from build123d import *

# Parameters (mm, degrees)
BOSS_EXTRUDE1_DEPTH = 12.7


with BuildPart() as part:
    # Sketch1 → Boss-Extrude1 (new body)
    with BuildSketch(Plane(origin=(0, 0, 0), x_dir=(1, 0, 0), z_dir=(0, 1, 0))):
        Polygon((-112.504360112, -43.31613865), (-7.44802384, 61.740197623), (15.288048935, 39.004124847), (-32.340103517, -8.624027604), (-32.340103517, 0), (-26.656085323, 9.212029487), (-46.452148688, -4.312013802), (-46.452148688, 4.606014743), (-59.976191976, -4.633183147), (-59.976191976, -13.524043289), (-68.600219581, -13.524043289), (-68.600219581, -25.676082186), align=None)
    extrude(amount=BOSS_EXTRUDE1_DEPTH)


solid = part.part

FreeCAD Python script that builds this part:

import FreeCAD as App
import Part
import Sketcher
from FreeCAD import Vector
Q = App.Units.Quantity

doc = App.newDocument("Part")
body = doc.addObject("PartDesign::Body", "Body")

# Sketch on XZ plane
sketch1 = doc.addObject("Sketcher::SketchObject", "Sketch")
body.addObject(sketch1)
sketch1.AttachmentSupport = (doc.XZ_Plane, [""])
sketch1.MapMode = "FlatFace"
sketch1.addGeometry([
    Part.LineSegment(Vector(-7, -62, 0), Vector(-113, 43, 0)),  # 0
    Part.LineSegment(Vector(-113, 43, 0), Vector(-69, 26, 0)),  # 1
    Part.LineSegment(Vector(-69, 26, 0), Vector(-69, 14, 0)),  # 2
    Part.LineSegment(Vector(-69, 14, 0), Vector(-60, 14, 0)),  # 3
    Part.LineSegment(Vector(-60, 14, 0), Vector(-60, 5, 0)),  # 4
    Part.LineSegment(Vector(-60, 5, 0), Vector(-46, -5, 0)),  # 5
    Part.LineSegment(Vector(-46, -5, 0), Vector(-46, 4, 0)),  # 6
    Part.LineSegment(Vector(-46, 4, 0), Vector(-27, -9, 0)),  # 7
    Part.LineSegment(Vector(-27, -9, 0), Vector(-32, 0, 0)),  # 8
    Part.LineSegment(Vector(-32, 0, 0), Vector(-32, 9, 0)),  # 9
    Part.LineSegment(Vector(-32, 9, 0), Vector(15, -39, 0)),  # 10
    Part.LineSegment(Vector(15, -39, 0), Vector(-7, -62, 0)),  # 11
], False)
sketch1.addConstraint([
    Sketcher.Constraint("Coincident", 0, 2, 1, 1),
    Sketcher.Constraint("Coincident", 1, 2, 2, 1),
    Sketcher.Constraint("Coincident", 2, 2, 3, 1),
    Sketcher.Constraint("Coincident", 3, 2, 4, 1),
    Sketcher.Constraint("Coincident", 4, 2, 5, 1),
    Sketcher.Constraint("Coincident", 5, 2, 6, 1),
    Sketcher.Constraint("Coincident", 6, 2, 7, 1),
    Sketcher.Constraint("Coincident", 7, 2, 8, 1),
    Sketcher.Constraint("Coincident", 8, 2, 9, 1),
    Sketcher.Constraint("Coincident", 9, 2, 10, 1),
    Sketcher.Constraint("Coincident", 10, 2, 11, 1),
    Sketcher.Constraint("Coincident", 11, 2, 0, 1),
    Sketcher.Constraint("Vertical", 2),
    Sketcher.Constraint("Horizontal", 3),
    Sketcher.Constraint("Vertical", 4),
    Sketcher.Constraint("Vertical", 6),
    Sketcher.Constraint("Vertical", 9),
    Sketcher.Constraint("PointOnObject", 8, 2, -1),
    Sketcher.Constraint("Parallel", 5, 7),
    Sketcher.Constraint("Parallel", 0, 10),
    Sketcher.Constraint("Perpendicular", 10, 11),
    Sketcher.Constraint("Equal", 3, 9),
    Sketcher.Constraint("Angle", 0, Q("135 deg")),
    Sketcher.Constraint("DistanceY", 2, 2, 2, 1, 12.152039),
    Sketcher.Constraint("DistanceY", 4, 2, 4, 1, 8.89086),
    Sketcher.Constraint("DistanceY", 6, 1, 6, 2, 8.918029),
    Sketcher.Constraint("Distance", 1, 47.31538),
    Sketcher.Constraint("Distance", 5, 16.378722),
    Sketcher.Constraint("Distance", 7, 23.974651),
    Sketcher.Constraint("Distance", 8, 10.824488),
    Sketcher.Constraint("Distance", 10, 67.356379),
    Sketcher.Constraint("DistanceX", 3, 1, 3, 2, 8.624028),
    Sketcher.Constraint("DistanceX", 0, 2, -1, 1, 112.50436),
    Sketcher.Constraint("DistanceY", -1, 1, 0, 2, 43.316139),
    Sketcher.Constraint("DistanceX", 1, 2, -1, 1, 68.60022),
    Sketcher.Constraint("DistanceX", 5, 2, -1, 1, 46.452149),
])
pad1 = doc.addObject("PartDesign::Pad", "Pad")
body.addObject(pad1)
pad1.Profile = sketch1
pad1.Length = Q("0.5 in")
pad1.Reversed = True

doc.recompute()
